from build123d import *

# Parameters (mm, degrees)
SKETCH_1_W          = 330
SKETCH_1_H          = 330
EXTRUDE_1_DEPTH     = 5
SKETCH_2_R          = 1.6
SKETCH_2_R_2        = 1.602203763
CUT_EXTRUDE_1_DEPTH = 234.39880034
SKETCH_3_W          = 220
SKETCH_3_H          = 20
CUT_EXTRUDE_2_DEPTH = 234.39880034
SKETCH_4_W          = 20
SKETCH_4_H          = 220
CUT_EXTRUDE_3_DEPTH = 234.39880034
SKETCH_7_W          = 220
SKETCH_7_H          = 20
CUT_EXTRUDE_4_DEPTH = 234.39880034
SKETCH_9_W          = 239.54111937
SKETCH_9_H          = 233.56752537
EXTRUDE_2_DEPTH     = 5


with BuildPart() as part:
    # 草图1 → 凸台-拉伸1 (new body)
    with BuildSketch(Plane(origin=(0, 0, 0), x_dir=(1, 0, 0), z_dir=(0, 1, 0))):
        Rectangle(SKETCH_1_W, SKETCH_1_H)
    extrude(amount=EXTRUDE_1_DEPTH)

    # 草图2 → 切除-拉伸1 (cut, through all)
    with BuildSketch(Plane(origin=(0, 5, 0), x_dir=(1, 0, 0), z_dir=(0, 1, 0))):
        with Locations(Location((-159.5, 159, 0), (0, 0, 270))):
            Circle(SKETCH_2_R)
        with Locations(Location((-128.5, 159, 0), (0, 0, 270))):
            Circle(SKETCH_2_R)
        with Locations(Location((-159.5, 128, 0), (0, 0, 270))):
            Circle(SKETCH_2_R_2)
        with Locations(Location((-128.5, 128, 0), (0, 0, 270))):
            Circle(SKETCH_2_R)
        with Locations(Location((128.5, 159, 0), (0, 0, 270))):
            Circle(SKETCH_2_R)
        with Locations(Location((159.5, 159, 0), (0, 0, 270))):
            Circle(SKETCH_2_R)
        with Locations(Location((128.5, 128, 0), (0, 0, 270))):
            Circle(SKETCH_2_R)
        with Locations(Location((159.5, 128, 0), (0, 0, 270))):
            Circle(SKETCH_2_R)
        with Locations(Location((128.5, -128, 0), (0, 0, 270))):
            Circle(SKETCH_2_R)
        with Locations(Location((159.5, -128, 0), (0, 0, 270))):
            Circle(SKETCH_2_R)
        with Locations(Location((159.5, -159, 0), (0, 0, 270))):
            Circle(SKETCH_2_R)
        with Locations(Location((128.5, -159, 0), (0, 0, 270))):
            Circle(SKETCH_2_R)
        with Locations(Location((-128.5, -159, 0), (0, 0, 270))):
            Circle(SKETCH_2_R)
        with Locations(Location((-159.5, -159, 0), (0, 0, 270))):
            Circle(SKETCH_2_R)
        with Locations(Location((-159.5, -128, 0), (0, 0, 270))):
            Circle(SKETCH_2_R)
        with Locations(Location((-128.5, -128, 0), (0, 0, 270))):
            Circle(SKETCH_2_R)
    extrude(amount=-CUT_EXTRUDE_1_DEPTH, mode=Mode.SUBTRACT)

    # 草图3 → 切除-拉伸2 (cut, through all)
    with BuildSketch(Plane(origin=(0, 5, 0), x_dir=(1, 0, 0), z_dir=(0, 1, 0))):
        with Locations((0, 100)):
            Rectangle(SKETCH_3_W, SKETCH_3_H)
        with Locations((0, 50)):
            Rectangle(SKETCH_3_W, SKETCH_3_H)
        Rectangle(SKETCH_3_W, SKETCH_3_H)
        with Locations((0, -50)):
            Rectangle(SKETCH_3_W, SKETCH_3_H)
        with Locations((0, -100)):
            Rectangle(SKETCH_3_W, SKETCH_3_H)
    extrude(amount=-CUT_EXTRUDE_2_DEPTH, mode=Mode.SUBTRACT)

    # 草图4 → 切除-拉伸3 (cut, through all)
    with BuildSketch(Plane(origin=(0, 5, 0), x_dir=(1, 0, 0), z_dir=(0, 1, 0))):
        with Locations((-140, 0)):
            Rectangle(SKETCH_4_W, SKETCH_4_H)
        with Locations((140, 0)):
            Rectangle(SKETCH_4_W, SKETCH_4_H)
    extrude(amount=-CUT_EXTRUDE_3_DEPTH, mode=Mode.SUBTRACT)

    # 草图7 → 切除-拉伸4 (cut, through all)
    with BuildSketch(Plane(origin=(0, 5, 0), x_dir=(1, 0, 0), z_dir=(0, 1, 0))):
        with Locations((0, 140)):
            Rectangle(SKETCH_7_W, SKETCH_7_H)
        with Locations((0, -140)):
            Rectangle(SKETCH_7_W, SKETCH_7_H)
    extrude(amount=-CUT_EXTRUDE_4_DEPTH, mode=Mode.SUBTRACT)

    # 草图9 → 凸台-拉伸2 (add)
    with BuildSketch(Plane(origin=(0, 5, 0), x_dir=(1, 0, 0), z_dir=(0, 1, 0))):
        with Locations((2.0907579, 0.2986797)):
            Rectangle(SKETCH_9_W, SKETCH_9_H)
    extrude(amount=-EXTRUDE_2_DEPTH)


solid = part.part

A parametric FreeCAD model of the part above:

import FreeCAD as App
import Part
import Sketcher
from FreeCAD import Vector
Q = App.Units.Quantity

doc = App.newDocument("Part")
body = doc.addObject("PartDesign::Body", "Body")

sketch1 = doc.addObject("Sketcher::SketchObject", "Sketch")
body.addObject(sketch1)
sketch1.AttachmentSupport = (doc.XZ_Plane, [""])
sketch1.MapMode = "FlatFace"
sketch1.addGeometry(Part.LineSegment(Vector(-165, -165, 0), Vector(-165, 165, 0)), False)
sketch1.addGeometry(Part.LineSegment(Vector(-165, 165, 0), Vector(165, 165, 0)), False)
sketch1.addGeometry(Part.LineSegment(Vector(165, 165, 0), Vector(165, -165, 0)), False)
sketch1.addGeometry(Part.LineSegment(Vector(165, -165, 0), Vector(-165, -165, 0)), False)
sketch1.addConstraint(Sketcher.Constraint("Coincident", 0, 2, 1, 1))
sketch1.addConstraint(Sketcher.Constraint("Coincident", 1, 2, 2, 1))
sketch1.addConstraint(Sketcher.Constraint("Coincident", 2, 2, 3, 1))
sketch1.addConstraint(Sketcher.Constraint("Coincident", 3, 2, 0, 1))
sketch1.addConstraint(Sketcher.Constraint("Vertical", 0))
sketch1.addConstraint(Sketcher.Constraint("Horizontal", 1))
sketch1.addConstraint(Sketcher.Constraint("Vertical", 2))
sketch1.addConstraint(Sketcher.Constraint("Horizontal", 3))
sketch1.addConstraint(Sketcher.Constraint("Symmetric", 0, 2, 2, 2, -1, 1))
sketch1.addConstraint(Sketcher.Constraint("Equal", 3, 0))
sketch1.addConstraint(Sketcher.Constraint("DistanceX", 1, 1, 1, 2, Q("330 mm")))
pad1 = doc.addObject("PartDesign::Pad", "Pad")
body.addObject(pad1)
pad1.Profile = sketch1
pad1.Length = 5
pad1.Reversed = True

sketch2 = doc.addObject("Sketcher::SketchObject", "Sketch001")
body.addObject(sketch2)
sketch2.AttachmentSupport = (doc.XZ_Plane, [""])
sketch2.MapMode = "FlatFace"
sketch2.AttachmentOffset = App.Placement(Vector(0, 0, -5), App.Rotation())
sketch2.addGeometry(Part.Circle(Vector(-159.5, -159, 0), Vector(0, 0, 1), 1.6), False)
sketch2.addGeometry(Part.Circle(Vector(-128.5, -159, 0), Vector(0, 0, 1), 1.6), False)
sketch2.addGeometry(Part.Circle(Vector(-159.5, -128, 0), Vector(0, 0, 1), 1.6), False)
sketch2.addGeometry(Part.Circle(Vector(-128.5, -128, 0), Vector(0, 0, 1), 1.6), False)
sketch2.addGeometry(Part.Circle(Vector(128.5, -159, 0), Vector(0, 0, 1), 1.6), False)
sketch2.addGeometry(Part.Circle(Vector(159.5, -159, 0), Vector(0, 0, 1), 1.6), False)
sketch2.addGeometry(Part.Circle(Vector(128.5, -128, 0), Vector(0, 0, 1), 1.6), False)
sketch2.addGeometry(Part.Circle(Vector(159.5, -128, 0), Vector(0, 0, 1), 1.6), False)
sketch2.addGeometry(Part.Circle(Vector(128.5, 128, 0), Vector(0, 0, 1), 1.6), False)
sketch2.addGeometry(Part.Circle(Vector(159.5, 128, 0), Vector(0, 0, 1), 1.6), False)
sketch2.addGeometry(Part.Circle(Vector(159.5, 159, 0), Vector(0, 0, 1), 1.6), False)
sketch2.addGeometry(Part.Circle(Vector(128.5, 159, 0), Vector(0, 0, 1), 1.6), False)
sketch2.addGeometry(Part.Circle(Vector(-128.5, 159, 0), Vector(0, 0, 1), 1.6), False)
sketch2.addGeometry(Part.Circle(Vector(-159.5, 159, 0), Vector(0, 0, 1), 1.6), False)
sketch2.addGeometry(Part.Circle(Vector(-159.5, 128, 0), Vector(0, 0, 1), 1.6), False)
sketch2.addGeometry(Part.Circle(Vector(-128.5, 128, 0), Vector(0, 0, 1), 1.6), False)
sketch2.addConstraint(Sketcher.Constraint("Equal", 0, 1))
sketch2.addConstraint(Sketcher.Constraint("Equal", 1, 3))
sketch2.addConstraint(Sketcher.Constraint("Equal", 3, 4))
sketch2.addConstraint(Sketcher.Constraint("Equal", 4, 5))
sketch2.addConstraint(Sketcher.Constraint("Equal", 5, 6))
sketch2.addConstraint(Sketcher.Constraint("Equal", 6, 7))
sketch2.addConstraint(Sketcher.Constraint("Equal", 7, 8))
sketch2.addConstraint(Sketcher.Constraint("Equal", 8, 9))
sketch2.addConstraint(Sketcher.Constraint("Equal", 9, 10))
sketch2.addConstraint(Sketcher.Constraint("Equal", 10, 11))
sketch2.addConstraint(Sketcher.Constraint("Equal", 11, 12))
sketch2.addConstraint(Sketcher.Constraint("Equal", 12, 13))
sketch2.addConstraint(Sketcher.Constraint("Equal", 13, 14))
sketch2.addConstraint(Sketcher.Constraint("Equal", 14, 15))
sketch2.addConstraint(Sketcher.Constraint("Symmetric", 3, 3, 8, 3, -1, 1))
sketch2.addConstraint(Sketcher.Constraint("Symmetric", 2, 3, 9, 3, -1, 1))
sketch2.addConstraint(Sketcher.Constraint("Symmetric", 0, 3, 10, 3, -1, 1))
sketch2.addConstraint(Sketcher.Constraint("Symmetric", 1, 3, 11, 3, -1, 1))
sketch2.addConstraint(Sketcher.Constraint("Symmetric", 4, 3, 12, 3, -1, 1))
sketch2.addConstraint(Sketcher.Constraint("Symmetric", 5, 3, 13, 3, -1, 1))
sketch2.addConstraint(Sketcher.Constraint("Symmetric", 7, 3, 14, 3, -1, 1))
sketch2.addConstraint(Sketcher.Constraint("Symmetric", 6, 3, 15, 3, -1, 1))
sketch2.addConstraint(Sketcher.Constraint("Symmetric", 1, 3, 4, 3, -2))
sketch2.addConstraint(Sketcher.Constraint("Symmetric", 0, 3, 5, 3, -2))
sketch2.addConstraint(Sketcher.Constraint("Symmetric", 3, 3, 6, 3, -2))
sketch2.addConstraint(Sketcher.Constraint("Symmetric", 2, 3, 7, 3, -2))
sketch2.addConstraint(Sketcher.Constraint("Horizontal", 0, 3, 1, 3))
sketch2.addConstraint(Sketcher.Constraint("Horizontal", 2, 3, 3, 3))
sketch2.addConstraint(Sketcher.Constraint("Vertical", 0, 3, 2, 3))
sketch2.addConstraint(Sketcher.Constraint("Vertical", 1, 3, 3, 3))
sketch2.addConstraint(Sketcher.Constraint("Diameter", 0, Q("3.2 mm")))
sketch2.addConstraint(Sketcher.Constraint("DistanceY", 0, 3, -1, 1, Q("159 mm")))
sketch2.addConstraint(Sketcher.Constraint("DistanceY", 2, 3, -1, 1, Q("128 mm")))
sketch2.addConstraint(Sketcher.Constraint("DistanceX", 0, 3, 1, 3, Q("31 mm")))
sketch2.addConstraint(Sketcher.Constraint("DistanceX", 1, 3, 4, 3, Q("257 mm")))
sketch2.addConstraint(Sketcher.Constraint("Diameter", 2, Q("3.204408 mm")))
pocket1 = doc.addObject("PartDesign::Pocket", "Pocket")
body.addObject(pocket1)
pocket1.Profile = sketch2
pocket1.Type = "ThroughAll"
pocket1.Reversed = True

sketch3 = doc.addObject("Sketcher::SketchObject", "Sketch002")
body.addObject(sketch3)
sketch3.AttachmentSupport = (doc.XZ_Plane, [""])
sketch3.MapMode = "FlatFace"
sketch3.AttachmentOffset = App.Placement(Vector(0, 0, -5), App.Rotation())
sketch3.addGeometry(Part.LineSegment(Vector(-110, -110, 0), Vector(-110, -90, 0)), False)
sketch3.addGeometry(Part.LineSegment(Vector(-110, -90, 0), Vector(110, -90, 0)), False)
sketch3.addGeometry(Part.LineSegment(Vector(110, -90, 0), Vector(110, -110, 0)), False)
sketch3.addGeometry(Part.LineSegment(Vector(110, -110, 0), Vector(-110, -110, 0)), False)
sketch3.addGeometry(Part.LineSegment(Vector(-110, -60, 0), Vector(-110, -40, 0)), False)
sketch3.addGeometry(Part.LineSegment(Vector(-110, -40, 0), Vector(110, -40, 0)), False)
sketch3.addGeometry(Part.LineSegment(Vector(110, -40, 0), Vector(110, -60, 0)), False)
sketch3.addGeometry(Part.LineSegment(Vector(110, -60, 0), Vector(-110, -60, 0)), False)
sketch3.addGeometry(Part.LineSegment(Vector(-110, -10, 0), Vector(-110, 10, 0)), False)
sketch3.addGeometry(Part.LineSegment(Vector(-110, 10, 0), Vector(110, 10, 0)), False)
sketch3.addGeometry(Part.LineSegment(Vector(110, 10, 0), Vector(110, -10, 0)), False)
sketch3.addGeometry(Part.LineSegment(Vector(110, -10, 0), Vector(-110, -10, 0)), False)
sketch3.addGeometry(Part.LineSegment(Vector(-110, 40, 0), Vector(-110, 60, 0)), False)
sketch3.addGeometry(Part.LineSegment(Vector(-110, 60, 0), Vector(110, 60, 0)), False)
sketch3.addGeometry(Part.LineSegment(Vector(110, 60, 0), Vector(110, 40, 0)), False)
sketch3.addGeometry(Part.LineSegment(Vector(110, 40, 0), Vector(-110, 40, 0)), False)
sketch3.addGeometry(Part.LineSegment(Vector(-110, 90, 0), Vector(-110, 110, 0)), False)
sketch3.addGeometry(Part.LineSegment(Vector(-110, 110, 0), Vector(110, 110, 0)), False)
sketch3.addGeometry(Part.LineSegment(Vector(110, 110, 0), Vector(110, 90, 0)), False)
sketch3.addGeometry(Part.LineSegment(Vector(110, 90, 0), Vector(-110, 90, 0)), False)
sketch3.addConstraint(Sketcher.Constraint("Coincident", 0, 2, 1, 1))
sketch3.addConstraint(Sketcher.Constraint("Coincident", 1, 2, 2, 1))
sketch3.addConstraint(Sketcher.Constraint("Coincident", 2, 2, 3, 1))
sketch3.addConstraint(Sketcher.Constraint("Coincident", 3, 2, 0, 1))
sketch3.addConstraint(Sketcher.Constraint("Coincident", 4, 2, 5, 1))
sketch3.addConstraint(Sketcher.Constraint("Coincident", 5, 2, 6, 1))
sketch3.addConstraint(Sketcher.Constraint("Coincident", 6, 2, 7, 1))
sketch3.addConstraint(Sketcher.Constraint("Coincident", 7, 2, 4, 1))
sketch3.addConstraint(Sketcher.Constraint("Coincident", 8, 2, 9, 1))
sketch3.addConstraint(Sketcher.Constraint("Coincident", 9, 2, 10, 1))
sketch3.addConstraint(Sketcher.Constraint("Coincident", 10, 2, 11, 1))
sketch3.addConstraint(Sketcher.Constraint("Coincident", 11, 2, 8, 1))
sketch3.addConstraint(Sketcher.Constraint("Coincident", 12, 2, 13, 1))
sketch3.addConstraint(Sketcher.Constraint("Coincident", 13, 2, 14, 1))
sketch3.addConstraint(Sketcher.Constraint("Coincident", 14, 2, 15, 1))
sketch3.addConstraint(Sketcher.Constraint("Coincident", 15, 2, 12, 1))
sketch3.addConstraint(Sketcher.Constraint("Coincident", 16, 2, 17, 1))
sketch3.addConstraint(Sketcher.Constraint("Coincident", 17, 2, 18, 1))
sketch3.addConstraint(Sketcher.Constraint("Coincident", 18, 2, 19, 1))
sketch3.addConstraint(Sketcher.Constraint("Coincident", 19, 2, 16, 1))
sketch3.addConstraint(Sketcher.Constraint("Vertical", 0))
sketch3.addConstraint(Sketcher.Constraint("Horizontal", 1))
sketch3.addConstraint(Sketcher.Constraint("Vertical", 2))
sketch3.addConstraint(Sketcher.Constraint("Horizontal", 3))
sketch3.addConstraint(Sketcher.Constraint("Vertical", 4))
sketch3.addConstraint(Sketcher.Constraint("Horizontal", 5))
sketch3.addConstraint(Sketcher.Constraint("Vertical", 6))
sketch3.addConstraint(Sketcher.Constraint("Horizontal", 7))
sketch3.addConstraint(Sketcher.Constraint("Vertical", 8))
sketch3.addConstraint(Sketcher.Constraint("Horizontal", 9))
sketch3.addConstraint(Sketcher.Constraint("Vertical", 10))
sketch3.addConstraint(Sketcher.Constraint("Horizontal", 11))
sketch3.addConstraint(Sketcher.Constraint("Vertical", 12))
sketch3.addConstraint(Sketcher.Constraint("Horizontal", 13))
sketch3.addConstraint(Sketcher.Constraint("Vertical", 14))
sketch3.addConstraint(Sketcher.Constraint("Horizontal", 15))
sketch3.addConstraint(Sketcher.Constraint("Vertical", 16))
sketch3.addConstraint(Sketcher.Constraint("Horizontal", 17))
sketch3.addConstraint(Sketcher.Constraint("Vertical", 18))
sketch3.addConstraint(Sketcher.Constraint("Horizontal", 19))
sketch3.addConstraint(Sketcher.Constraint("Symmetric", 8, 2, 10, 2, -1, 1))
sketch3.addConstraint(Sketcher.Constraint("Symmetric", 6, 2, 12, 2, -1, 1))
sketch3.addConstraint(Sketcher.Constraint("Symmetric", 4, 2, 14, 2, -1, 1))
sketch3.addConstraint(Sketcher.Constraint("Symmetric", 2, 2, 16, 2, -1, 1))
sketch3.addConstraint(Sketcher.Constraint("Symmetric", 0, 2, 18, 2, -1, 1))
sketch3.addConstraint(Sketcher.Constraint("Vertical", 3, 2, 4, 2))
sketch3.addConstraint(Sketcher.Constraint("Vertical", 2, 2, 5, 2))
sketch3.addConstraint(Sketcher.Constraint("Vertical", 7, 2, 8, 2))
sketch3.addConstraint(Sketcher.Constraint("Vertical", 6, 2, 9, 2))
sketch3.addConstraint(Sketcher.Constraint("Equal", 2, 4))
sketch3.addConstraint(Sketcher.Constraint("Equal", 6, 8))
sketch3.addConstraint(Sketcher.Constraint("DistanceX", 1, 1, 1, 2, Q("220 mm")))
sketch3.addConstraint(Sketcher.Constraint("DistanceY", 0, 1, 0, 2, Q("20 mm")))
sketch3.addConstraint(Sketcher.Constraint("DistanceY", 0, 2, -1, 1, Q("90 mm")))
sketch3.addConstraint(Sketcher.Constraint("DistanceY", 4, 2, -1, 1, Q("40 mm")))
pocket2 = doc.addObject("PartDesign::Pocket", "Pocket001")
body.addObject(pocket2)
pocket2.Profile = sketch3
pocket2.Type = "ThroughAll"
pocket2.Reversed = True

sketch4 = doc.addObject("Sketcher::SketchObject", "Sketch003")
body.addObject(sketch4)
sketch4.AttachmentSupport = (doc.XZ_Plane, [""])
sketch4.MapMode = "FlatFace"
sketch4.AttachmentOffset = App.Placement(Vector(0, 0, -5), App.Rotation())
sketch4.addGeometry(Part.LineSegment(Vector(-150, -110, 0), Vector(-150, 110, 0)), False)
sketch4.addGeometry(Part.LineSegment(Vector(-150, 110, 0), Vector(-130, 110, 0)), False)
sketch4.addGeometry(Part.LineSegment(Vector(-130, 110, 0), Vector(-130, -110, 0)), False)
sketch4.addGeometry(Part.LineSegment(Vector(-130, -110, 0), Vector(-150, -110, 0)), False)
sketch4.addGeometry(Part.LineSegment(Vector(130, -110, 0), Vector(130, 110, 0)), False)
sketch4.addGeometry(Part.LineSegment(Vector(130, 110, 0), Vector(150, 110, 0)), False)
sketch4.addGeometry(Part.LineSegment(Vector(150, 110, 0), Vector(150, -110, 0)), False)
sketch4.addGeometry(Part.LineSegment(Vector(150, -110, 0), Vector(130, -110, 0)), False)
sketch4.addConstraint(Sketcher.Constraint("Coincident", 0, 2, 1, 1))
sketch4.addConstraint(Sketcher.Constraint("Coincident", 1, 2, 2, 1))
sketch4.addConstraint(Sketcher.Constraint("Coincident", 2, 2, 3, 1))
sketch4.addConstraint(Sketcher.Constraint("Coincident", 3, 2, 0, 1))
sketch4.addConstraint(Sketcher.Constraint("Coincident", 4, 2, 5, 1))
sketch4.addConstraint(Sketcher.Constraint("Coincident", 5, 2, 6, 1))
sketch4.addConstraint(Sketcher.Constraint("Coincident", 6, 2, 7, 1))
sketch4.addConstraint(Sketcher.Constraint("Coincident", 7, 2, 4, 1))
sketch4.addConstraint(Sketcher.Constraint("Vertical", 0))
sketch4.addConstraint(Sketcher.Constraint("Horizontal", 1))
sketch4.addConstraint(Sketcher.Constraint("Vertical", 2))
sketch4.addConstraint(Sketcher.Constraint("Horizontal", 3))
sketch4.addConstraint(Sketcher.Constraint("Vertical", 4))
sketch4.addConstraint(Sketcher.Constraint("Horizontal", 5))
sketch4.addConstraint(Sketcher.Constraint("Vertical", 6))
sketch4.addConstraint(Sketcher.Constraint("Horizontal", 7))
sketch4.addConstraint(Sketcher.Constraint("Symmetric", 2, 2, 4, 2, -1, 1))
sketch4.addConstraint(Sketcher.Constraint("Symmetric", 0, 2, 6, 2, -1, 1))
sketch4.addConstraint(Sketcher.Constraint("Horizontal", 1, 2, 4, 2))
sketch4.addConstraint(Sketcher.Constraint("DistanceX", 1, 1, 1, 2, Q("20 mm")))
sketch4.addConstraint(Sketcher.Constraint("DistanceY", 0, 1, 0, 2, Q("220 mm")))
sketch4.addConstraint(Sketcher.Constraint("DistanceX", 0, 2, -1, 1, Q("150 mm")))
pocket3 = doc.addObject("PartDesign::Pocket", "Pocket002")
body.addObject(pocket3)
pocket3.Profile = sketch4
pocket3.Type = "ThroughAll"
pocket3.Reversed = True

sketch5 = doc.addObject("Sketcher::SketchObject", "Sketch004")
body.addObject(sketch5)
sketch5.AttachmentSupport = (doc.XZ_Plane, [""])
sketch5.MapMode = "FlatFace"
sketch5.AttachmentOffset = App.Placement(Vector(0, 0, -5), App.Rotation())
sketch5.addGeometry(Part.LineSegment(Vector(-110, -150, 0), Vector(-110, -130, 0)), False)
sketch5.addGeometry(Part.LineSegment(Vector(-110, -130, 0), Vector(110, -130, 0)), False)
sketch5.addGeometry(Part.LineSegment(Vector(110, -130, 0), Vector(110, -150, 0)), False)
sketch5.addGeometry(Part.LineSegment(Vector(110, -150, 0), Vector(-110, -150, 0)), False)
sketch5.addGeometry(Part.LineSegment(Vector(-110, 130, 0), Vector(-110, 150, 0)), False)
sketch5.addGeometry(Part.LineSegment(Vector(-110, 150, 0), Vector(110, 150, 0)), False)
sketch5.addGeometry(Part.LineSegment(Vector(110, 150, 0), Vector(110, 130, 0)), False)
sketch5.addGeometry(Part.LineSegment(Vector(110, 130, 0), Vector(-110, 130, 0)), False)
sketch5.addConstraint(Sketcher.Constraint("Coincident", 0, 2, 1, 1))
sketch5.addConstraint(Sketcher.Constraint("Coincident", 1, 2, 2, 1))
sketch5.addConstraint(Sketcher.Constraint("Coincident", 2, 2, 3, 1))
sketch5.addConstraint(Sketcher.Constraint("Coincident", 3, 2, 0, 1))
sketch5.addConstraint(Sketcher.Constraint("Coincident", 4, 2, 5, 1))
sketch5.addConstraint(Sketcher.Constraint("Coincident", 5, 2, 6, 1))
sketch5.addConstraint(Sketcher.Constraint("Coincident", 6, 2, 7, 1))
sketch5.addConstraint(Sketcher.Constraint("Coincident", 7, 2, 4, 1))
sketch5.addConstraint(Sketcher.Constraint("Vertical", 0))
sketch5.addConstraint(Sketcher.Constraint("Horizontal", 1))
sketch5.addConstraint(Sketcher.Constraint("Vertical", 2))
sketch5.addConstraint(Sketcher.Constraint("Horizontal", 3))
sketch5.addConstraint(Sketcher.Constraint("Vertical", 4))
sketch5.addConstraint(Sketcher.Constraint("Horizontal", 5))
sketch5.addConstraint(Sketcher.Constraint("Vertical", 6))
sketch5.addConstraint(Sketcher.Constraint("Horizontal", 7))
sketch5.addConstraint(Sketcher.Constraint("Symmetric", 2, 2, 4, 2, -1, 1))
sketch5.addConstraint(Sketcher.Constraint("Symmetric", 0, 2, 6, 2, -1, 1))
sketch5.addConstraint(Sketcher.Constraint("Vertical", 3, 2, 4, 2))
sketch5.addConstraint(Sketcher.Constraint("DistanceX", 1, 1, 1, 2, Q("220 mm")))
sketch5.addConstraint(Sketcher.Constraint("DistanceY", 0, 1, 0, 2, Q("20 mm")))
sketch5.addConstraint(Sketcher.Constraint("DistanceY", 0, 2, -1, 1, Q("130 mm")))
pocket4 = doc.addObject("PartDesign::Pocket", "Pocket003")
body.addObject(pocket4)
pocket4.Profile = sketch5
pocket4.Type = "ThroughAll"
pocket4.Reversed = True

sketch6 = doc.addObject("Sketcher::SketchObject", "Sketch005")
body.addObject(sketch6)
sketch6.AttachmentSupport = (doc.XZ_Plane, [""])
sketch6.MapMode = "FlatFace"
sketch6.AttachmentOffset = App.Placement(Vector(0, 0, -5), App.Rotation())
sketch6.addGeometry(Part.LineSegment(Vector(-118, -117, 0), Vector(-118, 116, 0)), False)
sketch6.addGeometry(Part.LineSegment(Vector(-118, 116, 0), Vector(122, 116, 0)), False)
sketch6.addGeometry(Part.LineSegment(Vector(122, 116, 0), Vector(122, -117, 0)), False)
sketch6.addGeometry(Part.LineSegment(Vector(122, -117, 0), Vector(-118, -117, 0)), False)
sketch6.addConstraint(Sketcher.Constraint("Coincident", 0, 2, 1, 1))
sketch6.addConstraint(Sketcher.Constraint("Coincident", 1, 2, 2, 1))
sketch6.addConstraint(Sketcher.Constraint("Coincident", 2, 2, 3, 1))
sketch6.addConstraint(Sketcher.Constraint("Coincident", 3, 2, 0, 1))
sketch6.addConstraint(Sketcher.Constraint("Vertical", 0))
sketch6.addConstraint(Sketcher.Constraint("Horizontal", 1))
sketch6.addConstraint(Sketcher.Constraint("Vertical", 2))
sketch6.addConstraint(Sketcher.Constraint("Horizontal", 3))
sketch6.addConstraint(Sketcher.Constraint("DistanceX", 1, 1, 1, 2, Q("239.541119 mm")))
sketch6.addConstraint(Sketcher.Constraint("DistanceX", 0, 2, -1, 1, Q("117.679802 mm")))
sketch6.addConstraint(Sketcher.Constraint("DistanceY", 0, 1, 0, 2, Q("233.567525 mm")))
sketch6.addConstraint(Sketcher.Constraint("DistanceY", -1, 1, 0, 2, Q("116.485083 mm")))
pad2 = doc.addObject("PartDesign::Pad", "Pad001")
body.addObject(pad2)
pad2.Profile = sketch6
pad2.Length = 5

doc.recompute()
